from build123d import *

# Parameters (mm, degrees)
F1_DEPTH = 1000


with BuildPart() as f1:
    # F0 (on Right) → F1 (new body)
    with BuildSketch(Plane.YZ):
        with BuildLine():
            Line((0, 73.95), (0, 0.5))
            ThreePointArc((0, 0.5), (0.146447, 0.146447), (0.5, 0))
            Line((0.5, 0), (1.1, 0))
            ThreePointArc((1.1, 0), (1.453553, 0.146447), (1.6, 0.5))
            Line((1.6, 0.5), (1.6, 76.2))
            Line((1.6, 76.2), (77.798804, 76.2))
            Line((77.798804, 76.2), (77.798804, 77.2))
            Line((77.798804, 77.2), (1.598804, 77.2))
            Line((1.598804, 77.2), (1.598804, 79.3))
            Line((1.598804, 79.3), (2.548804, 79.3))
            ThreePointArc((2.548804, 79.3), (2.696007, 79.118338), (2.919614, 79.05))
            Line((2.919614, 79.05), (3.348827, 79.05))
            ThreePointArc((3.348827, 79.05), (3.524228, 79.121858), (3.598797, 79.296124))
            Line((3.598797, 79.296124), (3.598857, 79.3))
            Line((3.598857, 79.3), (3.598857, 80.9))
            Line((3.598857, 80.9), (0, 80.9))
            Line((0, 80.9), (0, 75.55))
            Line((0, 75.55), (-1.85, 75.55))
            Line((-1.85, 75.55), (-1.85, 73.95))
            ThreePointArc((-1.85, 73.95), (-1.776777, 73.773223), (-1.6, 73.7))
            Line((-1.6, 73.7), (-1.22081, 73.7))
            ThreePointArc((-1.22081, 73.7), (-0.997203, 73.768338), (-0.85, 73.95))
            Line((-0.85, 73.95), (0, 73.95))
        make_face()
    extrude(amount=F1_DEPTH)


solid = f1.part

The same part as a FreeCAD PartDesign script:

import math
import FreeCAD as App
import Part
import Sketcher
from FreeCAD import Vector

doc = App.newDocument("Part")
body = doc.addObject("PartDesign::Body", "Body")

# Sketch on YZ plane
sketch1 = doc.addObject("Sketcher::SketchObject", "Sketch")
body.addObject(sketch1)
sketch1.AttachmentSupport = (doc.YZ_Plane, [""])
sketch1.MapMode = "FlatFace"
sketch1.addGeometry([
    Part.LineSegment(Vector(0, 73.95, 0), Vector(0, 0.5, 0)),  # 0
    Part.ArcOfCircle(Part.Circle(Vector(0.5, 0.5, 0), Vector(0, 0, 1), 0.5), math.radians(-180), math.radians(-90)),  # 1
    Part.LineSegment(Vector(0.5, 0, 0), Vector(1.1, 0, 0)),  # 2
    Part.ArcOfCircle(Part.Circle(Vector(1.1, 0.5, 0), Vector(0, 0, 1), 0.5), math.radians(-90), math.radians(0)),  # 3
    Part.LineSegment(Vector(1.6, 0.5, 0), Vector(1.6, 76.2, 0)),  # 4
    Part.LineSegment(Vector(1.6, 76.2, 0), Vector(77.7988, 76.2, 0)),  # 5
    Part.LineSegment(Vector(77.7988, 76.2, 0), Vector(77.7988, 77.2, 0)),  # 6
    Part.LineSegment(Vector(77.7988, 77.2, 0), Vector(1.5988, 77.2, 0)),  # 7
    Part.LineSegment(Vector(1.5988, 77.2, 0), Vector(1.5988, 79.3, 0)),  # 8
    Part.LineSegment(Vector(1.5988, 79.3, 0), Vector(2.5488, 79.3, 0)),  # 9
    Part.ArcOfCircle(Part.Circle(Vector(2.9196, 79.45, 0), Vector(0, 0, 1), 0.4), math.radians(-158), math.radians(-90)),  # 10
    Part.LineSegment(Vector(2.9196, 79.05, 0), Vector(3.3488, 79.05, 0)),  # 11
    Part.ArcOfCircle(Part.Circle(Vector(3.3488, 79.3, 0), Vector(0, 0, 1), 0.25), math.radians(-90), math.radians(-1)),  # 12
    Part.LineSegment(Vector(3.5988, 79.2961, 0), Vector(3.5989, 79.3, 0)),  # 13
    Part.LineSegment(Vector(3.5989, 79.3, 0), Vector(3.5989, 80.9, 0)),  # 14
    Part.LineSegment(Vector(3.5989, 80.9, 0), Vector(0, 80.9, 0)),  # 15
    Part.LineSegment(Vector(0, 80.9, 0), Vector(0, 75.55, 0)),  # 16
    Part.LineSegment(Vector(0, 75.55, 0), Vector(-1.85, 75.55, 0)),  # 17
    Part.LineSegment(Vector(-1.85, 75.55, 0), Vector(-1.85, 73.95, 0)),  # 18
    Part.ArcOfCircle(Part.Circle(Vector(-1.6, 73.95, 0), Vector(0, 0, 1), 0.25), math.radians(180), math.radians(270)),  # 19
    Part.LineSegment(Vector(-1.6, 73.7, 0), Vector(-1.2208, 73.7, 0)),  # 20
    Part.ArcOfCircle(Part.Circle(Vector(-1.2208, 74.1, 0), Vector(0, 0, 1), 0.4), math.radians(-90), math.radians(-22)),  # 21
    Part.LineSegment(Vector(-0.85, 73.95, 0), Vector(0, 73.95, 0)),  # 22
], False)
sketch1.addConstraint([
    Sketcher.Constraint("Coincident", 0, 2, 1, 1),
    Sketcher.Constraint("Coincident", 1, 2, 2, 1),
    Sketcher.Constraint("Coincident", 2, 2, 3, 1),
    Sketcher.Constraint("Coincident", 3, 2, 4, 1),
    Sketcher.Constraint("Coincident", 4, 2, 5, 1),
    Sketcher.Constraint("Coincident", 5, 2, 6, 1),
    Sketcher.Constraint("Coincident", 6, 2, 7, 1),
    Sketcher.Constraint("Coincident", 7, 2, 8, 1),
    Sketcher.Constraint("Coincident", 8, 2, 9, 1),
    Sketcher.Constraint("Coincident", 9, 2, 10, 1),
    Sketcher.Constraint("Coincident", 10, 2, 11, 1),
    Sketcher.Constraint("Tangent", 11, 2, 12, 1),
    Sketcher.Constraint("Coincident", 12, 2, 13, 1),
    Sketcher.Constraint("Coincident", 13, 2, 14, 1),
    Sketcher.Constraint("Coincident", 14, 2, 15, 1),
    Sketcher.Constraint("Coincident", 15, 2, 16, 1),
    Sketcher.Constraint("Coincident", 16, 2, 17, 1),
    Sketcher.Constraint("Coincident", 17, 2, 18, 1),
    Sketcher.Constraint("Coincident", 18, 2, 19, 1),
    Sketcher.Constraint("Coincident", 19, 2, 20, 1),
    Sketcher.Constraint("Coincident", 20, 2, 21, 1),
    Sketcher.Constraint("Coincident", 21, 2, 22, 1),
    Sketcher.Constraint("Coincident", 22, 2, 0, 1),
    Sketcher.Constraint("Vertical", 0),
    Sketcher.Constraint("Horizontal", 2),
    Sketcher.Constraint("Vertical", 4),
    Sketcher.Constraint("Horizontal", 5),
    Sketcher.Constraint("Vertical", 6),
    Sketcher.Constraint("Horizontal", 7),
    Sketcher.Constraint("Vertical", 8),
    Sketcher.Constraint("Horizontal", 9),
    Sketcher.Constraint("Horizontal", 11),
    Sketcher.Constraint("Vertical", 14),
    Sketcher.Constraint("Horizontal", 15),
    Sketcher.Constraint("Vertical", 16),
    Sketcher.Constraint("Horizontal", 17),
    Sketcher.Constraint("Vertical", 18),
    Sketcher.Constraint("Horizontal", 20),
    Sketcher.Constraint("Horizontal", 22),
    Sketcher.Constraint("Equal", 1, 3),
    Sketcher.Constraint("Equal", 12, 19),
    Sketcher.Constraint("Equal", 10, 21),
    Sketcher.Constraint("PointOnObject", 0, 2, -2),
    Sketcher.Constraint("PointOnObject", 1, 2, -1),
    Sketcher.Constraint("PointOnObject", 15, 2, -2),
    Sketcher.Constraint("Horizontal", 3, 3, 0, 2),
    Sketcher.Constraint("Horizontal", 0, 2, 3, 2),
    Sketcher.Constraint("Horizontal", 12, 3, 8, 2),
    Sketcher.Constraint("Horizontal", 9, 2, 13, 2),
    Sketcher.Constraint("Horizontal", 19, 3, 18, 2),
    Sketcher.Constraint("Horizontal", 18, 2, 21, 2),
    Sketcher.Constraint("Vertical", 3, 3, 2, 2),
    Sketcher.Constraint("Vertical", 21, 3, 20, 2),
    Sketcher.Constraint("Equal", 14, 18),
    Sketcher.Constraint("Radius", 1, 0.500001),
    Sketcher.Constraint("Radius", 10, 0.400002),
    Sketcher.Constraint("DistanceY", 6, 1, 6, 2, 1.0),
    Sketcher.Constraint("Radius", 12, 0.25),
    Sketcher.Constraint("DistanceX", 2, 1, 2, 2, 0.6),
    Sketcher.Constraint("DistanceX", 7, 2, 7, 1, 76.2),
    Sketcher.Constraint("DistanceY", 4, 1, 4, 2, 75.7),
    Sketcher.Constraint("DistanceY", 8, 1, 8, 2, 2.1),
    Sketcher.Constraint("DistanceY", 14, 1, 14, 2, 1.6),
    Sketcher.Constraint("DistanceX", 18, 2, 21, 2, 1.0),
    Sketcher.Constraint("DistanceX", 9, 1, 9, 2, 0.95),
    Sketcher.Constraint("DistanceX", 17, 2, 17, 1, 1.85),
    Sketcher.Constraint("DistanceY", 0, 2, 0, 1, 73.45),
    Sketcher.Constraint("DistanceX", -1, 1, 3, 3, 1.099999),
    Sketcher.Constraint("DistanceX", 19, 2, -1, 1, 1.6),
    Sketcher.Constraint("DistanceX", 5, 1, 5, 2, 76.198804),
    Sketcher.Constraint("DistanceX", 11, 1, 11, 2, 0.429213),
    Sketcher.Constraint("DistanceX", 15, 2, 15, 1, 3.598857),
    Sketcher.Constraint("DistanceX", 3, 3, 12, 3, 2.248829),
    Sketcher.Constraint("DistanceX", 12, 3, 12, 2, 0.24997),
])
pad1 = doc.addObject("PartDesign::Pad", "Pad")
body.addObject(pad1)
pad1.Profile = sketch1
pad1.Length = 1000

doc.recompute()
